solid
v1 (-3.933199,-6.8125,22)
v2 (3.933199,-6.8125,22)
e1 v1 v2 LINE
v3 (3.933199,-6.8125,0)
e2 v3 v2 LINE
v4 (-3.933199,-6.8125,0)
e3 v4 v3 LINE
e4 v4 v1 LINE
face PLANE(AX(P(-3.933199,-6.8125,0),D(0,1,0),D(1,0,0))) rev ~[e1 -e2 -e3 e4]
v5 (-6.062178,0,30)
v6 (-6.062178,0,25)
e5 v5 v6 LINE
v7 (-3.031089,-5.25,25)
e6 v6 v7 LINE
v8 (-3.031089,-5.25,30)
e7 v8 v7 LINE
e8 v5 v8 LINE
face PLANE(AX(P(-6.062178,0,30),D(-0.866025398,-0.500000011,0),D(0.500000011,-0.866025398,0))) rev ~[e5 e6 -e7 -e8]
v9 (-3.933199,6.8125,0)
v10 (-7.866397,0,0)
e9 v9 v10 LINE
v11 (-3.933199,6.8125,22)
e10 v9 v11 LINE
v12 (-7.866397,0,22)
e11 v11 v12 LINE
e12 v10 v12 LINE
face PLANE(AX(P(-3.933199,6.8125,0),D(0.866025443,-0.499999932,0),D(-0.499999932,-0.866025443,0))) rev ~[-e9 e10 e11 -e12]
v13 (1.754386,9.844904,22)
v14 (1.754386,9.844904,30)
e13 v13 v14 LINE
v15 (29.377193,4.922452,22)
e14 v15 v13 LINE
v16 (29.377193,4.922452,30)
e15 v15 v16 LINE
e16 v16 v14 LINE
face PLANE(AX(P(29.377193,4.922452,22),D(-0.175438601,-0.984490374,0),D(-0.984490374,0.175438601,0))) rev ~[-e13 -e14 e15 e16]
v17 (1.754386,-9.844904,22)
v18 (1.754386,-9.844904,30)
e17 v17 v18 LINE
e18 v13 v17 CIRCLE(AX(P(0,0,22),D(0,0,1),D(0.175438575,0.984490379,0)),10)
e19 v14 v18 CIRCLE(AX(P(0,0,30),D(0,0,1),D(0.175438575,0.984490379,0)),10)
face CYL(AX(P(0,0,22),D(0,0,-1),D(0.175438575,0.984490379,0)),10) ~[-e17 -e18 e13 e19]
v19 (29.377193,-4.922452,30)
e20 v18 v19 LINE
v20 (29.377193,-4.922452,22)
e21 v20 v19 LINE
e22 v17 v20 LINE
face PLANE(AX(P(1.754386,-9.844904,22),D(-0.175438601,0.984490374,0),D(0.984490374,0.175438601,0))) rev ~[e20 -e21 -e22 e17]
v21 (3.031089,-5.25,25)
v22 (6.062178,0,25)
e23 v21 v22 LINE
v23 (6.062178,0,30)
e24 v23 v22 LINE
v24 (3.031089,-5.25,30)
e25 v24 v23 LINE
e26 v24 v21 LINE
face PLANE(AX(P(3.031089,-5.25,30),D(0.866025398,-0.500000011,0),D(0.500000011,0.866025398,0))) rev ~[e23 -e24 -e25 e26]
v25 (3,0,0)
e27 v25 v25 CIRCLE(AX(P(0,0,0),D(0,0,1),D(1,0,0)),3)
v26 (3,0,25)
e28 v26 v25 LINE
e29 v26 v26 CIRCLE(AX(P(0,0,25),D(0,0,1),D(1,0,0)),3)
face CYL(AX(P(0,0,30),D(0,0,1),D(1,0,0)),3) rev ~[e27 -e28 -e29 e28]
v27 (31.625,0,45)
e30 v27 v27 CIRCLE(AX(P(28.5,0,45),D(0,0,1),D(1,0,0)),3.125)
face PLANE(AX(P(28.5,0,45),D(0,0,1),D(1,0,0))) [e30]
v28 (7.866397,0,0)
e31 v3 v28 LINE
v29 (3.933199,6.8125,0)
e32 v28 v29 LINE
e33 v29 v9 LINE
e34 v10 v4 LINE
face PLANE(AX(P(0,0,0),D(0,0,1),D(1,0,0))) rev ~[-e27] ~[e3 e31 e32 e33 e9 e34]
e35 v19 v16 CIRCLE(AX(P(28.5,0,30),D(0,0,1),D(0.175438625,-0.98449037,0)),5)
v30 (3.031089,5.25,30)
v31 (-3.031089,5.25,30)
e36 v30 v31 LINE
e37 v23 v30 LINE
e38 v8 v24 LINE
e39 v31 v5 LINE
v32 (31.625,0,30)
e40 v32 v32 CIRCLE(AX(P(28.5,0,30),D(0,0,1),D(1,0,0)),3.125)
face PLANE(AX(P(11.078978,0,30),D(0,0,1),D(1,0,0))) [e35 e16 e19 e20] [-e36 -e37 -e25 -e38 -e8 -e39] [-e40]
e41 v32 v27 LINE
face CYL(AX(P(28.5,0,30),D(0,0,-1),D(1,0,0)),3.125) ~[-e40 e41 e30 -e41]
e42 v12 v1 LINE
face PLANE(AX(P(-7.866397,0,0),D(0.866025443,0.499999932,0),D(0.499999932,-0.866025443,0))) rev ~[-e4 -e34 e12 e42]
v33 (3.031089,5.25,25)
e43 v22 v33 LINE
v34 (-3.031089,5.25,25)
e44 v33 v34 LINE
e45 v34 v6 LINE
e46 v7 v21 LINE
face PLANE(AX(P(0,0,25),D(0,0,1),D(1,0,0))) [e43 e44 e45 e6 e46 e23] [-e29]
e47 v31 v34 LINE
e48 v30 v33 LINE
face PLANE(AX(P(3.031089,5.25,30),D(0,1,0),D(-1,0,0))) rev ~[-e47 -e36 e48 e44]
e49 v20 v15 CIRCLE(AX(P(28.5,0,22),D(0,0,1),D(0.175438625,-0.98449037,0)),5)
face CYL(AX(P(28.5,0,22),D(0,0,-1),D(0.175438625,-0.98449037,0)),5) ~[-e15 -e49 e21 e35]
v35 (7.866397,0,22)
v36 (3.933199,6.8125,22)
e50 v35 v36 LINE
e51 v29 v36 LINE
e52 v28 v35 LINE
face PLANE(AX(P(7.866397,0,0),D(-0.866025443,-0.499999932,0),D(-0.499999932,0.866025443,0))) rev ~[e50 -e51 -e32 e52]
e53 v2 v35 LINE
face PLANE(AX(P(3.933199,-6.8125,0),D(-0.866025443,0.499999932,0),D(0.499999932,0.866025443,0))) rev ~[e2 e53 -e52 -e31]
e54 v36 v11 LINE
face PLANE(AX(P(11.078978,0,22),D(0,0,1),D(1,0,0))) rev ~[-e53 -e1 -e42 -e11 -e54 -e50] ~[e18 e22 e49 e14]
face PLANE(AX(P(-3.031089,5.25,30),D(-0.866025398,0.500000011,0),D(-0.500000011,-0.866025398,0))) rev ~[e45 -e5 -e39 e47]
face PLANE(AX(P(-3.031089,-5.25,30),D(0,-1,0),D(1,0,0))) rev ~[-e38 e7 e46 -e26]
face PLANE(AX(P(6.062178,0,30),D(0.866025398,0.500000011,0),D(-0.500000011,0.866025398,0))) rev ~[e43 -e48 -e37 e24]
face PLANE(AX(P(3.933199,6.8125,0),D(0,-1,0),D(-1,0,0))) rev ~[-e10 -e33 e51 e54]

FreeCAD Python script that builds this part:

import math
import FreeCAD as App
import Part
import Sketcher
from FreeCAD import Vector
Q = App.Units.Quantity


def add_polygon(sketch, points):
    """Adds a closed chain of lines whose ends are joined by coincident constraints."""
    first, n = sketch.GeometryCount, len(points)
    for a, b in zip(points, points[1:] + points[:1]):
        sketch.addGeometry(Part.LineSegment(App.Vector(*a, 0), App.Vector(*b, 0)), False)
    for i in range(n):
        sketch.addConstraint(Sketcher.Constraint("Coincident", first + i, 2, first + (i + 1) % n, 1))

doc = App.newDocument("Part")
body = doc.addObject("PartDesign::Body", "Body")

# Sketch on XY plane
sketch1 = doc.addObject("Sketcher::SketchObject", "Sketch")
body.addObject(sketch1)
sketch1.AttachmentSupport = (doc.XY_Plane, [""])
sketch1.MapMode = "FlatFace"
add_polygon(sketch1, [(4, 7), (-4, 7), (-8, 0), (-4, -7), (4, -7), (8, 0)])  # lines 0-5
sketch1.addConstraint([
    Sketcher.Constraint("Horizontal", 0),
    Sketcher.Constraint("Horizontal", 3),
    Sketcher.Constraint("Symmetric", 0, 2, 3, 2, -1, 1),
    Sketcher.Constraint("Symmetric", 1, 2, 4, 2, -1, 1),
    Sketcher.Constraint("PointOnObject", 1, 2, -1),
    Sketcher.Constraint("Parallel", 2, 5),
    Sketcher.Constraint("Vertical", 0, 2, 2, 2),
    Sketcher.Constraint("Angle", 1, Q("-119.999996 deg")),
    Sketcher.Constraint("DistanceX", 0, 2, 0, 1, 7.866398),
    Sketcher.Constraint("DistanceY", 2, 2, 0, 2, 13.625),
])
pad1 = doc.addObject("PartDesign::Pad", "Pad")
body.addObject(pad1)
pad1.Profile = sketch1
pad1.Length = 22

# Sketch on XY plane
sketch2 = doc.addObject("Sketcher::SketchObject", "Sketch001")
body.addObject(sketch2)
sketch2.AttachmentSupport = (doc.XY_Plane, [""])
sketch2.MapMode = "FlatFace"
sketch2.AttachmentOffset = App.Placement(Vector(0, 0, 22), App.Rotation())
sketch2.addGeometry([
    Part.ArcOfCircle(Part.Circle(Vector(0, 0, 0), Vector(0, 0, 1), 10), math.radians(80), math.radians(280)),
    Part.LineSegment(Vector(2, -10, 0), Vector(29, -5, 0)),
    Part.ArcOfCircle(Part.Circle(Vector(28, 0, 0), Vector(0, 0, 1), 5), math.radians(-80), math.radians(80)),
    Part.LineSegment(Vector(29, 5, 0), Vector(2, 10, 0)),
], False)
sketch2.addConstraint([
    Sketcher.Constraint("Tangent", 0, 2, 1, 1),
    Sketcher.Constraint("Tangent", 1, 2, 2, 1),
    Sketcher.Constraint("Tangent", 2, 2, 3, 1),
    Sketcher.Constraint("Tangent", 3, 2, 0, 1),
    Sketcher.Constraint("Coincident", 0, 3, -1, 1),
    Sketcher.Constraint("PointOnObject", 2, 3, -1),
    Sketcher.Constraint("Radius", 0, 10.0),
    Sketcher.Constraint("Radius", 2, 5.0),
    Sketcher.Constraint("DistanceX", -1, 1, 2, 3, 28.5),
])
pad2 = doc.addObject("PartDesign::Pad", "Pad001")
body.addObject(pad2)
pad2.Profile = sketch2
pad2.Length = 8

# Sketch on XY plane
sketch3 = doc.addObject("Sketcher::SketchObject", "Sketch002")
body.addObject(sketch3)
sketch3.AttachmentSupport = (doc.XY_Plane, [""])
sketch3.MapMode = "FlatFace"
sketch3.AttachmentOffset = App.Placement(Vector(0, 0, 30), App.Rotation())
sketch3.addGeometry(Part.Circle(Vector(28.5, 0, 0), Vector(0, 0, 1), 3.1), False)
sketch3.addConstraint([
    Sketcher.Constraint("PointOnObject", 0, 3, -1),
    Sketcher.Constraint("Diameter", 0, 6.25),
    Sketcher.Constraint("DistanceX", -1, 1, 0, 3, 28.5),
])
pad3 = doc.addObject("PartDesign::Pad", "Pad002")
body.addObject(pad3)
pad3.Profile = sketch3
pad3.Length = 15

# Sketch on XY plane
sketch4 = doc.addObject("Sketcher::SketchObject", "Sketch003")
body.addObject(sketch4)
sketch4.AttachmentSupport = (doc.XY_Plane, [""])
sketch4.MapMode = "FlatFace"
sketch4.AttachmentOffset = App.Placement(Vector(0, 0, 30), App.Rotation())
sketch4.addGeometry(Part.Circle(Vector(0, 0, 0), Vector(0, 0, 1), 3), False)
sketch4.addConstraint([
    Sketcher.Constraint("Coincident", 0, 3, -1, 1),
    Sketcher.Constraint("Diameter", 0, 6.0),
])
pocket1 = doc.addObject("PartDesign::Pocket", "Pocket")
body.addObject(pocket1)
pocket1.Profile = sketch4
pocket1.Type = "ThroughAll"

# Sketch on XY plane
sketch5 = doc.addObject("Sketcher::SketchObject", "Sketch004")
body.addObject(sketch5)
sketch5.AttachmentSupport = (doc.XY_Plane, [""])
sketch5.MapMode = "FlatFace"
sketch5.AttachmentOffset = App.Placement(Vector(0, 0, 30), App.Rotation())
add_polygon(sketch5, [(3, 5), (-3, 5), (-6, 0), (-3, -5), (3, -5), (6, 0)])  # lines 0-5
sketch5.addConstraint([
    Sketcher.Constraint("Horizontal", 0),
    Sketcher.Constraint("Horizontal", 3),
    Sketcher.Constraint("Symmetric", 0, 2, 3, 2, -1, 1),
    Sketcher.Constraint("Symmetric", 1, 2, 4, 2, -1, 1),
    Sketcher.Constraint("PointOnObject", 1, 2, -1),
    Sketcher.Constraint("Parallel", 2, 5),
    Sketcher.Constraint("Vertical", 0, 2, 2, 2),
    Sketcher.Constraint("Angle", 1, Q("-120.000001 deg")),
    Sketcher.Constraint("DistanceY", 2, 2, 0, 2, 10.5),
    Sketcher.Constraint("DistanceX", 0, 2, 0, 1, 6.062178),
])
pocket2 = doc.addObject("PartDesign::Pocket", "Pocket001")
body.addObject(pocket2)
pocket2.Profile = sketch5
pocket2.Length = 5

doc.recompute()
